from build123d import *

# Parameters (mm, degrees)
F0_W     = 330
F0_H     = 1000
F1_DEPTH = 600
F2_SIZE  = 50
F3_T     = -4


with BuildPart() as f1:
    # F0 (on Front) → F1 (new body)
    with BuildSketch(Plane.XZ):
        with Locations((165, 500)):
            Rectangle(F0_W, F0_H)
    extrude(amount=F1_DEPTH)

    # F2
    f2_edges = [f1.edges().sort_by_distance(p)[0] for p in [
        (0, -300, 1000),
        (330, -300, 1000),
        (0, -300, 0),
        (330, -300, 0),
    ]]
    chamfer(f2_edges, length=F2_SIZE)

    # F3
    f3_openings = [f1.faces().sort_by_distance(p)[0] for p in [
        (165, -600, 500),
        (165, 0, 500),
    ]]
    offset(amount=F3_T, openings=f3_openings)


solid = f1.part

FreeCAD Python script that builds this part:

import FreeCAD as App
import Part
import Sketcher
Q = App.Units.Quantity


def edges_at(feature, points):
    """Names of the edges that pass closest to the given points."""
    edges = feature.Shape.Edges
    near = lambda p: min(range(len(edges)), key=lambda i: edges[i].distToShape(Part.Vertex(*p))[0])
    return sorted({f"Edge{near(p) + 1}" for p in points})


def faces_at(feature, points):
    """Names of the faces that lie closest to the given points."""
    faces = feature.Shape.Faces
    near = lambda p: min(range(len(faces)), key=lambda i: faces[i].distToShape(Part.Vertex(*p))[0])
    return sorted({f"Face{near(p) + 1}" for p in points})


def add_polygon(sketch, points):
    """Adds a closed chain of lines whose ends are joined by coincident constraints."""
    first, n = sketch.GeometryCount, len(points)
    for a, b in zip(points, points[1:] + points[:1]):
        sketch.addGeometry(Part.LineSegment(App.Vector(*a, 0), App.Vector(*b, 0)), False)
    for i in range(n):
        sketch.addConstraint(Sketcher.Constraint("Coincident", first + i, 2, first + (i + 1) % n, 1))

doc = App.newDocument("Part")
body = doc.addObject("PartDesign::Body", "Body")

sketch1 = body.newObject("Sketcher::SketchObject", "Sketch")
sketch1.AttachmentSupport = (doc.getObject("XZ_Plane"), [""])
sketch1.MapMode = "FlatFace"
add_polygon(sketch1, [(0, 1000), (0, 0), (330, 0), (330, 1000)])
sketch1.addConstraint(Sketcher.Constraint("Vertical", 0))
sketch1.addConstraint(Sketcher.Constraint("Horizontal", 1))
sketch1.addConstraint(Sketcher.Constraint("Vertical", 2))
sketch1.addConstraint(Sketcher.Constraint("Horizontal", 3))
sketch1.addConstraint(Sketcher.Constraint("Coincident", 0, 2, -1, 1))
sketch1.addConstraint(Sketcher.Constraint("DistanceX", 1, 1, 1, 2, Q("330 mm")))
sketch1.addConstraint(Sketcher.Constraint("DistanceY", 0, 2, 0, 1, Q("1000 mm")))
pad1 = body.newObject("PartDesign::Pad", "Pad")
pad1.Profile = sketch1
pad1.Length = 600
doc.recompute()

chamfer = body.newObject("PartDesign::Chamfer", "Chamfer")
chamfer.Base = (pad1, edges_at(pad1, [
    (0, -300, 1000),
    (330, -300, 1000),
    (0, -300, 0),
    (330, -300, 0),
]))
chamfer.Size = 50
doc.recompute()

thickness = body.newObject("PartDesign::Thickness", "Thickness")
thickness.Base = (chamfer, faces_at(chamfer, [(165, -600, 500), (165, 0, 500)]))
thickness.Value = 4
thickness.Reversed = True
thickness.Join = "Arc"

doc.recompute()
